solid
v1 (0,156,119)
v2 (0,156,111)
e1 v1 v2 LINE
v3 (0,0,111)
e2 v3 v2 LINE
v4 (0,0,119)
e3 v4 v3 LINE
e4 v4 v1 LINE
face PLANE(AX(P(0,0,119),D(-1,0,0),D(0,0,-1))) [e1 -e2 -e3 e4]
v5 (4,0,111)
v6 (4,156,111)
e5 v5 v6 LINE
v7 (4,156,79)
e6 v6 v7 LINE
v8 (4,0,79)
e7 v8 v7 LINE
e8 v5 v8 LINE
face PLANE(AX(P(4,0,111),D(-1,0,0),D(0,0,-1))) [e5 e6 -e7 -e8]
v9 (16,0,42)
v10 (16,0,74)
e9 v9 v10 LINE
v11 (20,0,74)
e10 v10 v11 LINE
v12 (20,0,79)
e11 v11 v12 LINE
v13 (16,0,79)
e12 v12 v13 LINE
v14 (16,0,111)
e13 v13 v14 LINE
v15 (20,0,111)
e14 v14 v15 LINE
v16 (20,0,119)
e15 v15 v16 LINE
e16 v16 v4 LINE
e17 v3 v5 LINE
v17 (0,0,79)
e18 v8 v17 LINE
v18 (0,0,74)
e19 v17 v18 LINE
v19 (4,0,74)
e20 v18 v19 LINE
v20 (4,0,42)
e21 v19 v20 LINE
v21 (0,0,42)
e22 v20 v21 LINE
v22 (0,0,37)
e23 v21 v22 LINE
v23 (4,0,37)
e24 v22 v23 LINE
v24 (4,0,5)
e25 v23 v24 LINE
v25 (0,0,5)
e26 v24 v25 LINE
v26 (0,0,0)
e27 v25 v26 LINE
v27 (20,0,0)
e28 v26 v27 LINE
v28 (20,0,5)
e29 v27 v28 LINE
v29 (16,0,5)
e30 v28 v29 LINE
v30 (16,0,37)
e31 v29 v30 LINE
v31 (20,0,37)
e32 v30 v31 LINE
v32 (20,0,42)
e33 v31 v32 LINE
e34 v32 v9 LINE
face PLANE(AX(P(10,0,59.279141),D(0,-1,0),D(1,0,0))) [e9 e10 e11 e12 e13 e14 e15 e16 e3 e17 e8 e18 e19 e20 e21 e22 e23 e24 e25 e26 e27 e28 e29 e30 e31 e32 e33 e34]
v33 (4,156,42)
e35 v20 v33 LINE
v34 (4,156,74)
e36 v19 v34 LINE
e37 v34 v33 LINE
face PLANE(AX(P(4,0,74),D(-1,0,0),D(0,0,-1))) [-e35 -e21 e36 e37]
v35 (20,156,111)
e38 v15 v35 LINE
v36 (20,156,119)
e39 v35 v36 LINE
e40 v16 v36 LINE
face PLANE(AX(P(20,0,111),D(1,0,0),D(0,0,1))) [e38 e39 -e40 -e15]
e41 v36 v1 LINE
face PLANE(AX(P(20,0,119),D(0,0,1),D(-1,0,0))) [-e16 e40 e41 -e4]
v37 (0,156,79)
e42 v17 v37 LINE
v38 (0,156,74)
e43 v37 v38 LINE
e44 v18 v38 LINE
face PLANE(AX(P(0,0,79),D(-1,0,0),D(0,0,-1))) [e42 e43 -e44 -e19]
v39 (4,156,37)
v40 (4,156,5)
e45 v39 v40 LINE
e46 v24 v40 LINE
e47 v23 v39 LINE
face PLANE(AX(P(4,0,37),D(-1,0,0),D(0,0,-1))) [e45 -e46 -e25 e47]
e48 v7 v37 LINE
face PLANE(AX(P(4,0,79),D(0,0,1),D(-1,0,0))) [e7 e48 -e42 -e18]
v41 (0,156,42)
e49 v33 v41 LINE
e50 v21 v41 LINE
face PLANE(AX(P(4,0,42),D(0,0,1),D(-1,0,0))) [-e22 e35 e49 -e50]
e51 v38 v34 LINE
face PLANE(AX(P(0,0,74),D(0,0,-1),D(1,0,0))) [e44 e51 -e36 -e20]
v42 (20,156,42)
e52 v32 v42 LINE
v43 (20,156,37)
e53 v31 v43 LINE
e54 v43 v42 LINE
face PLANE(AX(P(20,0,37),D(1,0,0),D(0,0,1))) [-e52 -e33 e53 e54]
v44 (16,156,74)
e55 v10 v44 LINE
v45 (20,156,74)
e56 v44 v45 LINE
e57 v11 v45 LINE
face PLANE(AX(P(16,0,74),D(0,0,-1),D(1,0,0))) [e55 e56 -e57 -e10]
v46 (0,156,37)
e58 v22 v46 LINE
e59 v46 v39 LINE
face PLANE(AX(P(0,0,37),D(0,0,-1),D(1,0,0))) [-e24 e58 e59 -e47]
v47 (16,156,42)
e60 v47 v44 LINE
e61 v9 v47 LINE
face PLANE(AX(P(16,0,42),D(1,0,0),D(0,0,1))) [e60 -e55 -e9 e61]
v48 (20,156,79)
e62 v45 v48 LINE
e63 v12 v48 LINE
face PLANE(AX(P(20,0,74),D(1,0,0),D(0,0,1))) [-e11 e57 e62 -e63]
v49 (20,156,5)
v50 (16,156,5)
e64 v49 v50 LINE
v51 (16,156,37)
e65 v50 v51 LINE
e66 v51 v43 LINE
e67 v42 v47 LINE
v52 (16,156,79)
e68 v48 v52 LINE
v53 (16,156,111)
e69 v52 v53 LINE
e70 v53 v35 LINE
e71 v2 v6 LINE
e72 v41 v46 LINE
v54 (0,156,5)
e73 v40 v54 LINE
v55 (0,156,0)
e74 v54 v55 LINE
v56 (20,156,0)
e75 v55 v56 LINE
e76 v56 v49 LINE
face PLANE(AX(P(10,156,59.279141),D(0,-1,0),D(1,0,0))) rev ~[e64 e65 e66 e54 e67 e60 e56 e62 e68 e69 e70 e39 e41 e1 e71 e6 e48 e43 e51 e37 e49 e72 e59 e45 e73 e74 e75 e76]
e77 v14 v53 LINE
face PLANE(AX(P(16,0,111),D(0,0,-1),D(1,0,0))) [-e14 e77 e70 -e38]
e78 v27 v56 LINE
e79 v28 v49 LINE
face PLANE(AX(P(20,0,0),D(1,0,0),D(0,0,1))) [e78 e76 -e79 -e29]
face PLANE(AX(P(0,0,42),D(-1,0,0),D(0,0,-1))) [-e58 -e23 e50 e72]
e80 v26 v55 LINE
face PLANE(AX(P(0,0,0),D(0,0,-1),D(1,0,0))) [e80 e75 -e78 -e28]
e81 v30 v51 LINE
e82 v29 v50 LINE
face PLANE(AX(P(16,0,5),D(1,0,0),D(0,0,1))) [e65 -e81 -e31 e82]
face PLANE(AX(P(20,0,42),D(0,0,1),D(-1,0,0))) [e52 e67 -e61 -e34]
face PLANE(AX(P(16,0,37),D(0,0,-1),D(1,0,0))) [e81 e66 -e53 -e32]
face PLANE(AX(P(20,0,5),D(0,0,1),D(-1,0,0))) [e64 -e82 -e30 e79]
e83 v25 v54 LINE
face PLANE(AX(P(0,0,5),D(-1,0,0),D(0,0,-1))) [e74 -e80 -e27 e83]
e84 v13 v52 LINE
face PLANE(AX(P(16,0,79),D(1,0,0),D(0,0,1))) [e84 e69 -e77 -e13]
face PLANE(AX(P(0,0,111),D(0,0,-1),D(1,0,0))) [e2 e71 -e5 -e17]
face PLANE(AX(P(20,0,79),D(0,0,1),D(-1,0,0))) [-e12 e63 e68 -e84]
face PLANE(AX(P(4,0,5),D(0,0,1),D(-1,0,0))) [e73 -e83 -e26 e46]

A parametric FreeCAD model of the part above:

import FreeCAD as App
import Part
import Sketcher
from FreeCAD import Vector

doc = App.newDocument("Part")
body = doc.addObject("PartDesign::Body", "Body")

# Sketch on XZ plane
sketch1 = body.newObject("Sketcher::SketchObject", "Sketch")
sketch1.AttachmentSupport = (doc.getObject("XZ_Plane"), [""])
sketch1.MapMode = "FlatFace"
sketch1.addGeometry(Part.LineSegment(Vector(0, 5, 0), Vector(0, 0, 0)), False)
sketch1.addGeometry(Part.LineSegment(Vector(0, 0, 0), Vector(20, 0, 0)), False)
sketch1.addGeometry(Part.LineSegment(Vector(20, 0, 0), Vector(20, 5, 0)), False)
sketch1.addGeometry(Part.LineSegment(Vector(20, 5, 0), Vector(16, 5, 0)), False)
sketch1.addGeometry(Part.LineSegment(Vector(16, 5, 0), Vector(16, 37, 0)), False)
sketch1.addGeometry(Part.LineSegment(Vector(16, 37, 0), Vector(20, 37, 0)), False)
sketch1.addGeometry(Part.LineSegment(Vector(20, 37, 0), Vector(20, 42, 0)), False)
sketch1.addGeometry(Part.LineSegment(Vector(20, 42, 0), Vector(16, 42, 0)), False)
sketch1.addGeometry(Part.LineSegment(Vector(16, 42, 0), Vector(16, 74, 0)), False)
sketch1.addGeometry(Part.LineSegment(Vector(16, 74, 0), Vector(20, 74, 0)), False)
sketch1.addGeometry(Part.LineSegment(Vector(20, 74, 0), Vector(20, 79, 0)), False)
sketch1.addGeometry(Part.LineSegment(Vector(20, 79, 0), Vector(16, 79, 0)), False)
sketch1.addGeometry(Part.LineSegment(Vector(16, 79, 0), Vector(16, 111, 0)), False)
sketch1.addGeometry(Part.LineSegment(Vector(16, 111, 0), Vector(20, 111, 0)), False)
sketch1.addGeometry(Part.LineSegment(Vector(20, 111, 0), Vector(20, 119, 0)), False)
sketch1.addGeometry(Part.LineSegment(Vector(20, 119, 0), Vector(0, 119, 0)), False)
sketch1.addGeometry(Part.LineSegment(Vector(0, 119, 0), Vector(0, 111, 0)), False)
sketch1.addGeometry(Part.LineSegment(Vector(0, 111, 0), Vector(4, 111, 0)), False)
sketch1.addGeometry(Part.LineSegment(Vector(4, 111, 0), Vector(4, 79, 0)), False)
sketch1.addGeometry(Part.LineSegment(Vector(4, 79, 0), Vector(0, 79, 0)), False)
sketch1.addGeometry(Part.LineSegment(Vector(0, 79, 0), Vector(0, 74, 0)), False)
sketch1.addGeometry(Part.LineSegment(Vector(0, 74, 0), Vector(4, 74, 0)), False)
sketch1.addGeometry(Part.LineSegment(Vector(4, 74, 0), Vector(4, 42, 0)), False)
sketch1.addGeometry(Part.LineSegment(Vector(4, 42, 0), Vector(0, 42, 0)), False)
sketch1.addGeometry(Part.LineSegment(Vector(0, 42, 0), Vector(0, 37, 0)), False)
sketch1.addGeometry(Part.LineSegment(Vector(0, 37, 0), Vector(4, 37, 0)), False)
sketch1.addGeometry(Part.LineSegment(Vector(4, 37, 0), Vector(4, 5, 0)), False)
sketch1.addGeometry(Part.LineSegment(Vector(4, 5, 0), Vector(0, 5, 0)), False)
sketch1.addConstraint(Sketcher.Constraint("Coincident", 0, 2, 1, 1))
sketch1.addConstraint(Sketcher.Constraint("Coincident", 1, 2, 2, 1))
sketch1.addConstraint(Sketcher.Constraint("Coincident", 2, 2, 3, 1))
sketch1.addConstraint(Sketcher.Constraint("Coincident", 3, 2, 4, 1))
sketch1.addConstraint(Sketcher.Constraint("Coincident", 4, 2, 5, 1))
sketch1.addConstraint(Sketcher.Constraint("Coincident", 5, 2, 6, 1))
sketch1.addConstraint(Sketcher.Constraint("Coincident", 6, 2, 7, 1))
sketch1.addConstraint(Sketcher.Constraint("Coincident", 7, 2, 8, 1))
sketch1.addConstraint(Sketcher.Constraint("Coincident", 8, 2, 9, 1))
sketch1.addConstraint(Sketcher.Constraint("Coincident", 9, 2, 10, 1))
sketch1.addConstraint(Sketcher.Constraint("Coincident", 10, 2, 11, 1))
sketch1.addConstraint(Sketcher.Constraint("Coincident", 11, 2, 12, 1))
sketch1.addConstraint(Sketcher.Constraint("Coincident", 12, 2, 13, 1))
sketch1.addConstraint(Sketcher.Constraint("Coincident", 13, 2, 14, 1))
sketch1.addConstraint(Sketcher.Constraint("Coincident", 14, 2, 15, 1))
sketch1.addConstraint(Sketcher.Constraint("Coincident", 15, 2, 16, 1))
sketch1.addConstraint(Sketcher.Constraint("Coincident", 16, 2, 17, 1))
sketch1.addConstraint(Sketcher.Constraint("Coincident", 17, 2, 18, 1))
sketch1.addConstraint(Sketcher.Constraint("Coincident", 18, 2, 19, 1))
sketch1.addConstraint(Sketcher.Constraint("Coincident", 19, 2, 20, 1))
sketch1.addConstraint(Sketcher.Constraint("Coincident", 20, 2, 21, 1))
sketch1.addConstraint(Sketcher.Constraint("Coincident", 21, 2, 22, 1))
sketch1.addConstraint(Sketcher.Constraint("Coincident", 22, 2, 23, 1))
sketch1.addConstraint(Sketcher.Constraint("Coincident", 23, 2, 24, 1))
sketch1.addConstraint(Sketcher.Constraint("Coincident", 24, 2, 25, 1))
sketch1.addConstraint(Sketcher.Constraint("Coincident", 25, 2, 26, 1))
sketch1.addConstraint(Sketcher.Constraint("Coincident", 26, 2, 27, 1))
sketch1.addConstraint(Sketcher.Constraint("Coincident", 27, 2, 0, 1))
sketch1.addConstraint(Sketcher.Constraint("Vertical", 0))
sketch1.addConstraint(Sketcher.Constraint("Horizontal", 1))
sketch1.addConstraint(Sketcher.Constraint("Vertical", 2))
sketch1.addConstraint(Sketcher.Constraint("Horizontal", 3))
sketch1.addConstraint(Sketcher.Constraint("Vertical", 4))
sketch1.addConstraint(Sketcher.Constraint("Horizontal", 5))
sketch1.addConstraint(Sketcher.Constraint("Vertical", 6))
sketch1.addConstraint(Sketcher.Constraint("Horizontal", 7))
sketch1.addConstraint(Sketcher.Constraint("Vertical", 8))
sketch1.addConstraint(Sketcher.Constraint("Horizontal", 9))
sketch1.addConstraint(Sketcher.Constraint("Vertical", 10))
sketch1.addConstraint(Sketcher.Constraint("Horizontal", 11))
sketch1.addConstraint(Sketcher.Constraint("Vertical", 12))
sketch1.addConstraint(Sketcher.Constraint("Horizontal", 13))
sketch1.addConstraint(Sketcher.Constraint("Vertical", 14))
sketch1.addConstraint(Sketcher.Constraint("Horizontal", 15))
sketch1.addConstraint(Sketcher.Constraint("Vertical", 16))
sketch1.addConstraint(Sketcher.Constraint("Horizontal", 17))
sketch1.addConstraint(Sketcher.Constraint("Vertical", 18))
sketch1.addConstraint(Sketcher.Constraint("Horizontal", 19))
sketch1.addConstraint(Sketcher.Constraint("Vertical", 20))
sketch1.addConstraint(Sketcher.Constraint("Horizontal", 21))
sketch1.addConstraint(Sketcher.Constraint("Vertical", 22))
sketch1.addConstraint(Sketcher.Constraint("Horizontal", 23))
sketch1.addConstraint(Sketcher.Constraint("Vertical", 24))
sketch1.addConstraint(Sketcher.Constraint("Horizontal", 25))
sketch1.addConstraint(Sketcher.Constraint("Vertical", 26))
sketch1.addConstraint(Sketcher.Constraint("Horizontal", 27))
sketch1.addConstraint(Sketcher.Constraint("Coincident", 0, 2, -1, 1))
sketch1.addConstraint(Sketcher.Constraint("PointOnObject", 15, 2, -2))
sketch1.addConstraint(Sketcher.Constraint("PointOnObject", 19, 2, -2))
sketch1.addConstraint(Sketcher.Constraint("PointOnObject", 23, 2, -2))
sketch1.addConstraint(Sketcher.Constraint("Horizontal", 13, 2, 16, 2))
sketch1.addConstraint(Sketcher.Constraint("Horizontal", 11, 2, 18, 2))
sketch1.addConstraint(Sketcher.Constraint("Horizontal", 9, 2, 20, 2))
sketch1.addConstraint(Sketcher.Constraint("Horizontal", 7, 2, 22, 2))
sketch1.addConstraint(Sketcher.Constraint("Horizontal", 5, 2, 24, 2))
sketch1.addConstraint(Sketcher.Constraint("Horizontal", 3, 2, 26, 2))
sketch1.addConstraint(Sketcher.Constraint("Vertical", 2, 2, 5, 2))
sketch1.addConstraint(Sketcher.Constraint("Vertical", 4, 2, 7, 2))
sketch1.addConstraint(Sketcher.Constraint("Vertical", 6, 2, 9, 2))
sketch1.addConstraint(Sketcher.Constraint("Vertical", 8, 2, 11, 2))
sketch1.addConstraint(Sketcher.Constraint("Vertical", 10, 2, 13, 2))
sketch1.addConstraint(Sketcher.Constraint("Vertical", 18, 2, 21, 2))
sketch1.addConstraint(Sketcher.Constraint("Vertical", 22, 2, 25, 2))
sketch1.addConstraint(Sketcher.Constraint("Equal", 13, 17))
sketch1.addConstraint(Sketcher.Constraint("Equal", 2, 6))
sketch1.addConstraint(Sketcher.Constraint("Equal", 4, 8))
sketch1.addConstraint(Sketcher.Constraint("Equal", 6, 10))
sketch1.addConstraint(Sketcher.Constraint("Equal", 8, 12))
sketch1.addConstraint(Sketcher.Constraint("DistanceX", 1, 1, 1, 2, 20.0))
sketch1.addConstraint(Sketcher.Constraint("DistanceX", 3, 2, 3, 1, 4.0))
sketch1.addConstraint(Sketcher.Constraint("DistanceY", 0, 2, 0, 1, 5.0))
sketch1.addConstraint(Sketcher.Constraint("DistanceY", 4, 1, 4, 2, 32.0))
sketch1.addConstraint(Sketcher.Constraint("DistanceY", 14, 1, 14, 2, 8.0))
pad1 = body.newObject("PartDesign::Pad", "Pad")
pad1.Profile = sketch1
pad1.Length = 156
pad1.Reversed = True

doc.recompute()
